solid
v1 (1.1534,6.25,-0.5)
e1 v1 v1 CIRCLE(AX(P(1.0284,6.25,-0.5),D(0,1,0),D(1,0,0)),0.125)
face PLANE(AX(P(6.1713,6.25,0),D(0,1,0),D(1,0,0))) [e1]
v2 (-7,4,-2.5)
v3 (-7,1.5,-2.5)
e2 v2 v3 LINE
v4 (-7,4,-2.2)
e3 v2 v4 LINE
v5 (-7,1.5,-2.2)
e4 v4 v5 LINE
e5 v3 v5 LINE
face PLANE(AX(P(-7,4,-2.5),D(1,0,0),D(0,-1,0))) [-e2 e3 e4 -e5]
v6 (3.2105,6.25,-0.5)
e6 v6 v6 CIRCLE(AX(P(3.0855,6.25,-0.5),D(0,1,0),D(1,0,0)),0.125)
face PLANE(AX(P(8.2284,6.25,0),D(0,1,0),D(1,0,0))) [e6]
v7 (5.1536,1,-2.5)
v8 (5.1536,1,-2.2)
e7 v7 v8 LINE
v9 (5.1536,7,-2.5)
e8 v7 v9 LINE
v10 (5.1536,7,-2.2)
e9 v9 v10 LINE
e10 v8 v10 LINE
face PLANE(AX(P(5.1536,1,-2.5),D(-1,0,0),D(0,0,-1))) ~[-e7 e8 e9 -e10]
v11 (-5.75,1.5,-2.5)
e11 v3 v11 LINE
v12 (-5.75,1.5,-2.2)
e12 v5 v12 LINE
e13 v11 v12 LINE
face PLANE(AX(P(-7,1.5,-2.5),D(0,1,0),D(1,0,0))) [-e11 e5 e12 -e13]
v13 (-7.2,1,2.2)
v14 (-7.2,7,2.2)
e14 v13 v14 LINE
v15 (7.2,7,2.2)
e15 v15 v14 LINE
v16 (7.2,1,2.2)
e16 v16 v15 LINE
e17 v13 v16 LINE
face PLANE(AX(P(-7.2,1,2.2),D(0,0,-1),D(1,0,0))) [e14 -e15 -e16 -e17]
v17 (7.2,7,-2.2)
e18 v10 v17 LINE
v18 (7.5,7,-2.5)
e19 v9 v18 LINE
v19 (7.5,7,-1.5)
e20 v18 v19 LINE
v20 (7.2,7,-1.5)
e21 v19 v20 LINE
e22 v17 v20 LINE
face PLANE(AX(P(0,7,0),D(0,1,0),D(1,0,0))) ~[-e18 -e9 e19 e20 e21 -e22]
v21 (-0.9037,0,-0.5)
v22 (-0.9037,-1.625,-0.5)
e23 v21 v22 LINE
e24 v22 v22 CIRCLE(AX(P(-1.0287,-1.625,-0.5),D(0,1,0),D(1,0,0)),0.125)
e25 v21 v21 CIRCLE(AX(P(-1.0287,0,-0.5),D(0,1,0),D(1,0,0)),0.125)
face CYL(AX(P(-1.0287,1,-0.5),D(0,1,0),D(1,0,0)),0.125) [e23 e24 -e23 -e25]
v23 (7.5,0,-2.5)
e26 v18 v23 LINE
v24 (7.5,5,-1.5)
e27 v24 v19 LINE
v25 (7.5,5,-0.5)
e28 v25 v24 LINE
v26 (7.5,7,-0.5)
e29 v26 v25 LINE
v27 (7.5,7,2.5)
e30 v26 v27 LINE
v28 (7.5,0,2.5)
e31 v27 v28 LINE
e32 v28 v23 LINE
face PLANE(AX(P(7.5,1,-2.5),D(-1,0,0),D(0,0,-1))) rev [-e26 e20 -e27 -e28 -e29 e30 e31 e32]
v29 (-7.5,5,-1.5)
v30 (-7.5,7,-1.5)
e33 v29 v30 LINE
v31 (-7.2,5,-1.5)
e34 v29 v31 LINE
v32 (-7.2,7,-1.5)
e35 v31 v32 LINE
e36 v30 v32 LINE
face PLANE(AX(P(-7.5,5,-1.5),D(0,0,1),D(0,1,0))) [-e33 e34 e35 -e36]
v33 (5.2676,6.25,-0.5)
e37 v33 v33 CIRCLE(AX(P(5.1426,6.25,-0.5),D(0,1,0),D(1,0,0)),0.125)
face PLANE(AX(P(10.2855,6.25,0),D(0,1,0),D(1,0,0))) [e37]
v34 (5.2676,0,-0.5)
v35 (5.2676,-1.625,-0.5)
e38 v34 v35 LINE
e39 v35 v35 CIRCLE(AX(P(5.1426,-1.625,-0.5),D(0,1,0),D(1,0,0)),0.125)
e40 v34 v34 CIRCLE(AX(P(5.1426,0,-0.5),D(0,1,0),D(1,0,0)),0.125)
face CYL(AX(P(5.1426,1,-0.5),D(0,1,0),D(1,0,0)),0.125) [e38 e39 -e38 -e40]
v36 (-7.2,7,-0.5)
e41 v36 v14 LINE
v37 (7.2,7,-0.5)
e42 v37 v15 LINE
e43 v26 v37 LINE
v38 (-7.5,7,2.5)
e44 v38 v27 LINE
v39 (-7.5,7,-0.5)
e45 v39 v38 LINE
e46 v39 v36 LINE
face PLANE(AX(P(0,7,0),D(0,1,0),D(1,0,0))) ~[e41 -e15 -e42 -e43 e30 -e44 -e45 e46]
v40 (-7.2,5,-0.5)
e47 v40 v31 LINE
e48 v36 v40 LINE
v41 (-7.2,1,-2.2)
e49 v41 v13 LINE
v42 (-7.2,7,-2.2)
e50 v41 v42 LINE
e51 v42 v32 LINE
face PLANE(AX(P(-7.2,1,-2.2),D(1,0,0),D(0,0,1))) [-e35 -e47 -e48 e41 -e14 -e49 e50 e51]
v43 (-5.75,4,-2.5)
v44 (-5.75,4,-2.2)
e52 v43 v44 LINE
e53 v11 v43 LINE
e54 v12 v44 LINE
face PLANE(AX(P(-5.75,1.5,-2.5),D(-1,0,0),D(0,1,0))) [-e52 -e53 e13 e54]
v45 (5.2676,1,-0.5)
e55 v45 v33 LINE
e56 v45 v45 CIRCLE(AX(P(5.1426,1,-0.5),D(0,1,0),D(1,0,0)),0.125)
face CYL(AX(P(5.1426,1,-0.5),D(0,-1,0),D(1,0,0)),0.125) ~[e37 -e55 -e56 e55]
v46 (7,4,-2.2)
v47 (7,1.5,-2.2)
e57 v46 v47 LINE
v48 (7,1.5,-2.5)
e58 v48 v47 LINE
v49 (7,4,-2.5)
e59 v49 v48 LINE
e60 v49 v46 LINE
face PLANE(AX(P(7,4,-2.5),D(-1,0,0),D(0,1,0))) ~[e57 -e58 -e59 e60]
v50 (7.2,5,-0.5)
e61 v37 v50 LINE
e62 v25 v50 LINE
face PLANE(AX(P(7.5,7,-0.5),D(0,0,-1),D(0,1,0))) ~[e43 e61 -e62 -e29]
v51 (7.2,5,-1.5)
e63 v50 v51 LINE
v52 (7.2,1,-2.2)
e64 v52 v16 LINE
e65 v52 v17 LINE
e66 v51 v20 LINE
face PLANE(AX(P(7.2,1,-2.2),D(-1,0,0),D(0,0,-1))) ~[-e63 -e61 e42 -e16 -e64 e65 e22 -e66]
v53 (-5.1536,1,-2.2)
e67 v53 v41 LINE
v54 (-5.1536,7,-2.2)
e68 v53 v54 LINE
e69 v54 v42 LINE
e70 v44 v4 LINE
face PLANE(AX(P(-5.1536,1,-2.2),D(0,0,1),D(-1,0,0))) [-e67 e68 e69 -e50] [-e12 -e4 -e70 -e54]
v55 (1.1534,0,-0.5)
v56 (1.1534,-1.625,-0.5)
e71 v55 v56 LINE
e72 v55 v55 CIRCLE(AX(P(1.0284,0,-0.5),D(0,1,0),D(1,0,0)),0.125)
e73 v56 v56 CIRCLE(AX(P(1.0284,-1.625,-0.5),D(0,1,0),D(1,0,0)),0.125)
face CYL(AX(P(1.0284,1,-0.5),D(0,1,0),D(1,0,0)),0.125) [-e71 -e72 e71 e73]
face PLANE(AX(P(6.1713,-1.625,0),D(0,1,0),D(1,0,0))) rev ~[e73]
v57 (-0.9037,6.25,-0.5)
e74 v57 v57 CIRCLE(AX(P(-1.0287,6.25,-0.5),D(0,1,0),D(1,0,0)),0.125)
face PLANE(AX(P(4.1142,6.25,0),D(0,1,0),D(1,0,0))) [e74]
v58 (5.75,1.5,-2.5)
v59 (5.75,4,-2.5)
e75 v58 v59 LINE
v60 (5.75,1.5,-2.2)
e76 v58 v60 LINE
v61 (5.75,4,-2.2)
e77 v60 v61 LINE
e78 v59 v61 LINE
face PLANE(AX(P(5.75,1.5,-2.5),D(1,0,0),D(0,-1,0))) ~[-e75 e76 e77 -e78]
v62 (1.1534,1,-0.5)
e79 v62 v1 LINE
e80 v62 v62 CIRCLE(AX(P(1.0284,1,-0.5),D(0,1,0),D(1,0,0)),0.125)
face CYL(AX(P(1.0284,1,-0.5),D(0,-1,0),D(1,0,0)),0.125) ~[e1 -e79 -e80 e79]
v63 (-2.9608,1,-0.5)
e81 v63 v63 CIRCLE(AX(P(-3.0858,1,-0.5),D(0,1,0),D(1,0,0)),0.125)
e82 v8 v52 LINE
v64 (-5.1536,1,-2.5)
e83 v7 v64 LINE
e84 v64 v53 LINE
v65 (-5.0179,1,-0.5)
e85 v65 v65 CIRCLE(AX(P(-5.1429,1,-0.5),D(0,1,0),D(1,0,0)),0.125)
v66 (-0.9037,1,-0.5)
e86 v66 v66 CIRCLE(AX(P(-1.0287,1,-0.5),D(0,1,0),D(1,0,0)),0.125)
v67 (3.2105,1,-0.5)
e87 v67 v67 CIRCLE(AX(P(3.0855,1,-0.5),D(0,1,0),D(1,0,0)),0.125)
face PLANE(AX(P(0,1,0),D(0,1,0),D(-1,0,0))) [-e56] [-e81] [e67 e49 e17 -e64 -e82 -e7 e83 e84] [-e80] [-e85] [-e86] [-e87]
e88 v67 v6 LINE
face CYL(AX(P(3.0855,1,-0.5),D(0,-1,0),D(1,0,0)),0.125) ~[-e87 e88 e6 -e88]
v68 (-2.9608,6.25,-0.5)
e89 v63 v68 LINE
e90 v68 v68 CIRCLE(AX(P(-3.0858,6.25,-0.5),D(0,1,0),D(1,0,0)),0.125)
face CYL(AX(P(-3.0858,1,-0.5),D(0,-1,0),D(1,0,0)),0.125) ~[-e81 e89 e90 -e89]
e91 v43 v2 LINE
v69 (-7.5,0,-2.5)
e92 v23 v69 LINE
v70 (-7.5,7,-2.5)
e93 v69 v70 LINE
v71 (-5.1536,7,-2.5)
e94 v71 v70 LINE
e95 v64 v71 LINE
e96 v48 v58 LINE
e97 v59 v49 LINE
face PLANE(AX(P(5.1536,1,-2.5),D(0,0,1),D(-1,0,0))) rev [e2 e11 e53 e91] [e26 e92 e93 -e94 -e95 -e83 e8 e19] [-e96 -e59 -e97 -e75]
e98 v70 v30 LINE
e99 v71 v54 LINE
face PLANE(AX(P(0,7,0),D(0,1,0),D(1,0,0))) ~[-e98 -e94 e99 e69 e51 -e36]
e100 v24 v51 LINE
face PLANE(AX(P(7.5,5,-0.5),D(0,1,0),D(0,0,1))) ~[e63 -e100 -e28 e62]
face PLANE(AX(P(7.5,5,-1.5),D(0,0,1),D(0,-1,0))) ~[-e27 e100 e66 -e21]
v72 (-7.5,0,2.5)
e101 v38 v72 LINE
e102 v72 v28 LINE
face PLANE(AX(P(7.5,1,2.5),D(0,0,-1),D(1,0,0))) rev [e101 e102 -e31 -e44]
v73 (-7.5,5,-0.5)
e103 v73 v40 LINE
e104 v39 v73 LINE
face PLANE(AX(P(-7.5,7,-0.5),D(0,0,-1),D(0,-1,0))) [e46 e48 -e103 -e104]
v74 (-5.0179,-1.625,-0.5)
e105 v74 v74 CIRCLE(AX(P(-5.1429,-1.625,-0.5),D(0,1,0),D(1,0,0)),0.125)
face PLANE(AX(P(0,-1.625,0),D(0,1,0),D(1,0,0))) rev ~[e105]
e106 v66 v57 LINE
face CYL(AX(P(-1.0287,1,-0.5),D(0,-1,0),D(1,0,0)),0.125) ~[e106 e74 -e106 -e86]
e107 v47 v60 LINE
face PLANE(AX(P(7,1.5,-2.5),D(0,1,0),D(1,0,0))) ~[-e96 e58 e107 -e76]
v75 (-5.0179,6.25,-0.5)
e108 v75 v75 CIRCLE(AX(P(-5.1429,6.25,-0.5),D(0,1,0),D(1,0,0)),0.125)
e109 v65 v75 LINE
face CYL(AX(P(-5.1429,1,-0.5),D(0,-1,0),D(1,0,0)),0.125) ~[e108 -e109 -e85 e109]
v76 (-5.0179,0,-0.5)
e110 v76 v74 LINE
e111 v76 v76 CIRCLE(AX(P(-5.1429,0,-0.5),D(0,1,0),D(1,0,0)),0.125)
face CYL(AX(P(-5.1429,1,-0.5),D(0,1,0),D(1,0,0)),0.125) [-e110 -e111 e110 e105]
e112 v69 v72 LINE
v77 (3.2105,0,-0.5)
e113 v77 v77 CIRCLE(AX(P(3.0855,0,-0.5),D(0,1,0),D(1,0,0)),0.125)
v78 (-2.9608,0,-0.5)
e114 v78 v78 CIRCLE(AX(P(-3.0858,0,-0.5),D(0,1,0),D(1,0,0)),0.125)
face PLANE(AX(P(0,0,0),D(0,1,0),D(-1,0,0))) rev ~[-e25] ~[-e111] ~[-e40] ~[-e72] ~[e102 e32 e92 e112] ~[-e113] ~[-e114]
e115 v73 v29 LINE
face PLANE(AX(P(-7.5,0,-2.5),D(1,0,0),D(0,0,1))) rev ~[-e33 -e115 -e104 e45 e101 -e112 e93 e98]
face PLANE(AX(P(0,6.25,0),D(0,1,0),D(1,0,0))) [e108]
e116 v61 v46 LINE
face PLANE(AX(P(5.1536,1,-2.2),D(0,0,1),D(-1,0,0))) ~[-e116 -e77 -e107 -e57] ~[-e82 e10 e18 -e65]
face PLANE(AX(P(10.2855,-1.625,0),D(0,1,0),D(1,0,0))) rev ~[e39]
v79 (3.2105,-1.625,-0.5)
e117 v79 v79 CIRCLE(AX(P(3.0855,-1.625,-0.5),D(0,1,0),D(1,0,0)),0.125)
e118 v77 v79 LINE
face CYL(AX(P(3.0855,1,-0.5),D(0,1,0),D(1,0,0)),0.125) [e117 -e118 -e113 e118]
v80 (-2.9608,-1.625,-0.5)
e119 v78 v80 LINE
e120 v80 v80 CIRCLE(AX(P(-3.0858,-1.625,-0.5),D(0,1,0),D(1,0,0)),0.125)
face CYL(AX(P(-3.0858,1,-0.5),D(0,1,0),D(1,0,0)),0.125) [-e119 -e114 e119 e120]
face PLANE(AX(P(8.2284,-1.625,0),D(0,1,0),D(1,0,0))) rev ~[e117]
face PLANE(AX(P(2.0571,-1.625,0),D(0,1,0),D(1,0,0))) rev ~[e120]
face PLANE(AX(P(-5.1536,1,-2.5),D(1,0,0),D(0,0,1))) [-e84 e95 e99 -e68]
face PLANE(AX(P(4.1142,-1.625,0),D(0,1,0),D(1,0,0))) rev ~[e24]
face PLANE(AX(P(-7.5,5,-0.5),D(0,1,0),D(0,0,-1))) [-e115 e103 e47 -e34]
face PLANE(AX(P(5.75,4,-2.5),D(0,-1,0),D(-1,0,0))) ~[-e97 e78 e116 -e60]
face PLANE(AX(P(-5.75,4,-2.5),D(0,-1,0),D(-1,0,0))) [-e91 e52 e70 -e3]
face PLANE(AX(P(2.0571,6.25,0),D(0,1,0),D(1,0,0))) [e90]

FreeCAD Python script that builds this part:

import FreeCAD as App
import Part
import Sketcher


def add_polygon(sketch, points):
    """Adds a closed chain of lines whose ends are joined by coincident constraints."""
    first, n = sketch.GeometryCount, len(points)
    for a, b in zip(points, points[1:] + points[:1]):
        sketch.addGeometry(Part.LineSegment(App.Vector(*a, 0), App.Vector(*b, 0)), False)
    for i in range(n):
        sketch.addConstraint(Sketcher.Constraint("Coincident", first + i, 2, first + (i + 1) % n, 1))

doc = App.newDocument("Part")
params = doc.addObject("Spreadsheet::Sheet", "Params")
for row, (alias, value) in enumerate([
    ("sketch1_width", "15 mm"),
    ("sketch1_height", "5 mm"),
    ("pad1_length", "1 mm"),
    ("sketch2_height", "0.3 mm"),
    ("sketch2_height2", "5 mm"),
    ("sketch2_width", "7.5 mm"),
    ("pad2_length", "6 mm"),
    ("sketch3_height", "2.5 mm"),
    ("sketch3_width", "1.25 mm"),
    ("pocket1_length", "0.3 mm"),
    ("sketch4_diameter", "0.25 mm"),
    ("pad3_length", "5.25 mm"),
    ("pad3_length2", "2.625 mm"),
    ("linearpattern_pitch", "2.0571 mm"),
    ("sketch5_width", "2 mm"),
    ("sketch5_height", "1 mm"),
    ("pocket2_length", "0.3 mm"),
], start=1):
    params.set(f"A{row}", alias)
    params.set(f"B{row}", "=" + value)
    params.setAlias(f"B{row}", alias)

body = doc.addObject("PartDesign::Body", "Body")

sketch1 = body.newObject("Sketcher::SketchObject", "Sketch")
sketch1.AttachmentSupport = (doc.getObject("XZ_Plane"), [""])
sketch1.MapMode = "FlatFace"
add_polygon(sketch1, [(7.5, 2.5), (7.5, -2.5), (-7.5, -2.5), (-7.5, 2.5)])
sketch1.addConstraint(Sketcher.Constraint("Vertical", 0))
sketch1.addConstraint(Sketcher.Constraint("Horizontal", 1))
sketch1.addConstraint(Sketcher.Constraint("Vertical", 2))
sketch1.addConstraint(Sketcher.Constraint("Horizontal", 3))
sketch1.addConstraint(Sketcher.Constraint("Symmetric", 0, 2, 2, 2, -1, 1))
sketch1.addConstraint(Sketcher.Constraint("DistanceX", 1, 2, 1, 1, 15.0))
sketch1.addConstraint(Sketcher.Constraint("DistanceY", 0, 2, 0, 1, 5.0))
sketch1.setExpression("Constraints[9]", "Params.sketch1_width")
sketch1.setExpression("Constraints[10]", "Params.sketch1_height")
pad1 = body.newObject("PartDesign::Pad", "Pad")
pad1.Profile = sketch1
pad1.setExpression("Length", "Params.pad1_length")
pad1.Reversed = True

sketch2 = body.newObject("Sketcher::SketchObject", "Sketch001")
sketch2.AttachmentSupport = (doc.getObject("XZ_Plane"), [""])
sketch2.MapMode = "FlatFace"
sketch2.AttachmentOffset = App.Placement(App.Vector(0, 0, -1), App.Rotation())
add_polygon(sketch2, [(-5.1536, -2.2), (-5.1536, -2.5), (-7.5, -2.5), (-7.5, 2.5), (0, 2.5), (0, 2.2), (-7.2, 2.2), (-7.2, -2.2)])
sketch2.addConstraint(Sketcher.Constraint("Vertical", 0))
sketch2.addConstraint(Sketcher.Constraint("Horizontal", 1))
sketch2.addConstraint(Sketcher.Constraint("Vertical", 2))
sketch2.addConstraint(Sketcher.Constraint("Horizontal", 3))
sketch2.addConstraint(Sketcher.Constraint("Vertical", 4))
sketch2.addConstraint(Sketcher.Constraint("Horizontal", 5))
sketch2.addConstraint(Sketcher.Constraint("Vertical", 6))
sketch2.addConstraint(Sketcher.Constraint("Horizontal", 7))
sketch2.addConstraint(Sketcher.Constraint("PointOnObject", 3, 2, -2))
sketch2.addConstraint(Sketcher.Constraint("Equal", 0, 4))
sketch2.addConstraint(Sketcher.Constraint("DistanceY", 0, 2, 0, 1, 0.3))
sketch2.addConstraint(Sketcher.Constraint("DistanceX", 2, 2, 5, 2, 0.3))
sketch2.addConstraint(Sketcher.Constraint("DistanceY", 2, 1, 2, 2, 5.0))
sketch2.addConstraint(Sketcher.Constraint("DistanceX", 3, 1, 3, 2, 7.5))
sketch2.addConstraint(Sketcher.Constraint("DistanceY", 0, 2, -1, 1, 2.5))
sketch2.addConstraint(Sketcher.Constraint("DistanceX", 1, 2, 1, 1, 2.3464))
sketch2.setExpression("Constraints[18]", "Params.sketch2_height")
sketch2.setExpression("Constraints[20]", "Params.sketch2_height2")
sketch2.setExpression("Constraints[21]", "Params.sketch2_width")
pad2 = body.newObject("PartDesign::Pad", "Pad001")
pad2.Profile = sketch2
pad2.setExpression("Length", "Params.pad2_length")
pad2.Reversed = True
doc.recompute()

mirrored = body.newObject("PartDesign::Mirrored", "Mirrored")
mirrored.Originals = [pad2]
mirrored.MirrorPlane = (doc.getObject("YZ_Plane"), [""])
body.Tip = mirrored

sketch3 = body.newObject("Sketcher::SketchObject", "Sketch002")
sketch3.AttachmentSupport = (doc.getObject("XY_Plane"), [""])
sketch3.MapMode = "FlatFace"
sketch3.AttachmentOffset = App.Placement(App.Vector(0, 0, -2.5), App.Rotation())
add_polygon(sketch3, [(-5.75, 1.5), (-7, 1.5), (-7, 4), (-5.75, 4)])
sketch3.addConstraint(Sketcher.Constraint("Horizontal", 0))
sketch3.addConstraint(Sketcher.Constraint("Vertical", 1))
sketch3.addConstraint(Sketcher.Constraint("Horizontal", 2))
sketch3.addConstraint(Sketcher.Constraint("Vertical", 3))
sketch3.addConstraint(Sketcher.Constraint("DistanceY", 1, 1, 1, 2, 2.5))
sketch3.addConstraint(Sketcher.Constraint("DistanceX", 0, 2, 0, 1, 1.25))
sketch3.addConstraint(Sketcher.Constraint("DistanceX", 0, 2, -1, 1, 7.0))
sketch3.addConstraint(Sketcher.Constraint("DistanceY", -1, 1, 1, 2, 4.0))
sketch3.setExpression("Constraints[8]", "Params.sketch3_height")
sketch3.setExpression("Constraints[9]", "Params.sketch3_width")
pocket1 = body.newObject("PartDesign::Pocket", "Pocket")
pocket1.Profile = sketch3
pocket1.setExpression("Length", "Params.pocket1_length")
pocket1.Reversed = True
doc.recompute()

mirrored2 = body.newObject("PartDesign::Mirrored", "Mirrored001")
mirrored2.Originals = [pocket1]
mirrored2.MirrorPlane = (doc.getObject("YZ_Plane"), [""])
body.Tip = mirrored2

sketch4 = body.newObject("Sketcher::SketchObject", "Sketch003")
sketch4.AttachmentSupport = (doc.getObject("XZ_Plane"), [""])
sketch4.MapMode = "FlatFace"
sketch4.AttachmentOffset = App.Placement(App.Vector(0, 0, -1), App.Rotation())
sketch4.addGeometry(Part.Circle(App.Vector(-5.1429, -0.5, 0), App.Vector(0, 0, 1), 0.125), False)
sketch4.addConstraint(Sketcher.Constraint("Diameter", 0, 0.25))
sketch4.addConstraint(Sketcher.Constraint("DistanceY", 0, 3, -1, 1, 0.5))
sketch4.addConstraint(Sketcher.Constraint("DistanceX", 0, 3, -1, 1, 5.143))
sketch4.setExpression("Constraints[0]", "Params.sketch4_diameter")
pad3 = body.newObject("PartDesign::Pad", "Pad002")
pad3.Profile = sketch4
pad3.Type = "TwoLengths"
pad3.setExpression("Length", "Params.pad3_length")
pad3.setExpression("Length2", "Params.pad3_length2")
pad3.Reversed = True
doc.recompute()

linearpattern = body.newObject("PartDesign::LinearPattern", "LinearPattern")
linearpattern.Originals = [pad3]
linearpattern.Direction = (doc.getObject("X_Axis"), [""])
linearpattern.Mode = "offset"
linearpattern.setExpression("Offset", "Params.linearpattern_pitch")
linearpattern.Occurrences = 6
body.Tip = linearpattern

sketch5 = body.newObject("Sketcher::SketchObject", "Sketch004")
sketch5.AttachmentSupport = (doc.getObject("YZ_Plane"), [""])
sketch5.MapMode = "FlatFace"
sketch5.AttachmentOffset = App.Placement(App.Vector(0, 0, -7.5), App.Rotation())
add_polygon(sketch5, [(7, -0.5), (7, -1.5), (5, -1.5), (5, -0.5)])
sketch5.addConstraint(Sketcher.Constraint("Vertical", 0))
sketch5.addConstraint(Sketcher.Constraint("Horizontal", 1))
sketch5.addConstraint(Sketcher.Constraint("Vertical", 2))
sketch5.addConstraint(Sketcher.Constraint("Horizontal", 3))
sketch5.addConstraint(Sketcher.Constraint("DistanceX", 1, 2, 1, 1, 2.0))
sketch5.addConstraint(Sketcher.Constraint("DistanceY", 0, 2, 0, 1, 1.0))
sketch5.addConstraint(Sketcher.Constraint("DistanceX", -1, 1, 0, 2, 7.0))
sketch5.addConstraint(Sketcher.Constraint("DistanceY", 0, 2, -1, 1, 1.5))
sketch5.setExpression("Constraints[8]", "Params.sketch5_width")
sketch5.setExpression("Constraints[9]", "Params.sketch5_height")
pocket2 = body.newObject("PartDesign::Pocket", "Pocket001")
pocket2.Profile = sketch5
pocket2.setExpression("Length", "Params.pocket2_length")
pocket2.Reversed = True
doc.recompute()

mirrored3 = body.newObject("PartDesign::Mirrored", "Mirrored002")
mirrored3.Originals = [pocket2]
mirrored3.MirrorPlane = (doc.getObject("YZ_Plane"), [""])
body.Tip = mirrored3

doc.recompute()
